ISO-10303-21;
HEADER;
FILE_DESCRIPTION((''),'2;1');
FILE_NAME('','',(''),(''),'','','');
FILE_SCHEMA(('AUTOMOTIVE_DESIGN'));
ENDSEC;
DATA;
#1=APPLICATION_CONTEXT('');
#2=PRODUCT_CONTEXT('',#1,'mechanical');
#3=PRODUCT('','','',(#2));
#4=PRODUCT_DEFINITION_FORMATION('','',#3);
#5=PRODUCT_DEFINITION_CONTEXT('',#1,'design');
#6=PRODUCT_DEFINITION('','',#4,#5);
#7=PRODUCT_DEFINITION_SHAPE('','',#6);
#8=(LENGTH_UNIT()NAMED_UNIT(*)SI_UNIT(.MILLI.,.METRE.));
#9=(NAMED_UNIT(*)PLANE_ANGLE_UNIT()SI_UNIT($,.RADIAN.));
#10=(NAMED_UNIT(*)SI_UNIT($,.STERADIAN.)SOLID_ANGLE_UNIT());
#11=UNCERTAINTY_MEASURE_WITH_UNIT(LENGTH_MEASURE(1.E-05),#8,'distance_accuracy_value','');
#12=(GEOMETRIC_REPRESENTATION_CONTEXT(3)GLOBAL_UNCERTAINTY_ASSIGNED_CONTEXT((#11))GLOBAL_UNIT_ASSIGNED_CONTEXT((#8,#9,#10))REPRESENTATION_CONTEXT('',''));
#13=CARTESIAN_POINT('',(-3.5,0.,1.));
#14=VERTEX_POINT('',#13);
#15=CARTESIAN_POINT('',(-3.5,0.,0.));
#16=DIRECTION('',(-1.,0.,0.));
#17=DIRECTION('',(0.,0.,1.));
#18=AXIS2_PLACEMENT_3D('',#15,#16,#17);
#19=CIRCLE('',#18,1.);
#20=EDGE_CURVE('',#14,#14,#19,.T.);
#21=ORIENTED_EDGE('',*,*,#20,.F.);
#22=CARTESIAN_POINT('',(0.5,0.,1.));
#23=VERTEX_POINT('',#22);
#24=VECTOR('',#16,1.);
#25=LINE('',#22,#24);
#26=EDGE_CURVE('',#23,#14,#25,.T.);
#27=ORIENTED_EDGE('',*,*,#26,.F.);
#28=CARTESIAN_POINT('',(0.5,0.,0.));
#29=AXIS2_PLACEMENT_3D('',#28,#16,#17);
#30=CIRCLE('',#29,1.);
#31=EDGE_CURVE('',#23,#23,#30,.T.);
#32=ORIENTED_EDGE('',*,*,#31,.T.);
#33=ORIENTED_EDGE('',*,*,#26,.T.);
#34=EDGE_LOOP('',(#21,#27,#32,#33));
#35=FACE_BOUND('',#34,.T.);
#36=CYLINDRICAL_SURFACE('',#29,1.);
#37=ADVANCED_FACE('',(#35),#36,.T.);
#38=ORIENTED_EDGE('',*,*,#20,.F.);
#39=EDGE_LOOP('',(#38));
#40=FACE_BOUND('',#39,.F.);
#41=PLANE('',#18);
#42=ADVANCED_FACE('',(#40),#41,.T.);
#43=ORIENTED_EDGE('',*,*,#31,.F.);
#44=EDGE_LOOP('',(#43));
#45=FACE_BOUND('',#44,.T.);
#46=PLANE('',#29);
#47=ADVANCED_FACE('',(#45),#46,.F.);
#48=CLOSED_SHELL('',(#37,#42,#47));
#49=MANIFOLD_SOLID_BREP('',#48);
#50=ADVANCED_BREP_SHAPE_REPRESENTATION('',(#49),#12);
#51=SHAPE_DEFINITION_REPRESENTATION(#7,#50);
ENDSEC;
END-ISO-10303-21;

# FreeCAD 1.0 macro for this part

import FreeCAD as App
import Part
import Sketcher
from FreeCAD import Vector
Q = App.Units.Quantity


def add_polygon(sketch, points):
    """Adds a closed chain of lines whose ends are joined by coincident constraints."""
    first, n = sketch.GeometryCount, len(points)
    for a, b in zip(points, points[1:] + points[:1]):
        sketch.addGeometry(Part.LineSegment(App.Vector(*a, 0), App.Vector(*b, 0)), False)
    for i in range(n):
        sketch.addConstraint(Sketcher.Constraint("Coincident", first + i, 2, first + (i + 1) % n, 1))

doc = App.newDocument("Part")
params = doc.addObject("Spreadsheet::Sheet", "Params")
for row, (alias, value) in enumerate([
    ("sketch1_width", "4 mm"),
    ("sketch1_height", "1 mm"),
    ("revolution_angle", "360 deg"),
], start=1):
    params.set(f"A{row}", alias)
    params.set(f"B{row}", "=" + value)
    params.setAlias(f"B{row}", alias)

body = doc.addObject("PartDesign::Body", "Body")

# Sketch on XZ plane
sketch1 = body.newObject("Sketcher::SketchObject", "Sketch")
sketch1.AttachmentSupport = (doc.getObject("XZ_Plane"), [""])
sketch1.MapMode = "FlatFace"
add_polygon(sketch1, [(-3.5, 1), (-3.5, 0), (0.5, 0), (0.5, 1)])  # lines 0-3
sketch1.addConstraint(Sketcher.Constraint("Vertical", 0))
sketch1.addConstraint(Sketcher.Constraint("Horizontal", 1))
sketch1.addConstraint(Sketcher.Constraint("Vertical", 2))
sketch1.addConstraint(Sketcher.Constraint("Horizontal", 3))
sketch1.addConstraint(Sketcher.Constraint("PointOnObject", 0, 2, -1))
sketch1.addConstraint(Sketcher.Constraint("DistanceX", 1, 1, 1, 2, Q("4 mm")))
sketch1.addConstraint(Sketcher.Constraint("DistanceY", 0, 2, 0, 1, Q("1 mm")))
sketch1.addConstraint(Sketcher.Constraint("DistanceX", 0, 2, -1, 1, Q("3.5 mm")))
sketch1.setExpression("Constraints[9]", "Params.sketch1_width")
sketch1.setExpression("Constraints[10]", "Params.sketch1_height")
revolution = body.newObject("PartDesign::Revolution", "Revolution")
revolution.Profile = sketch1
revolution.ReferenceAxis = (sketch1, ["H_Axis"])
revolution.setExpression("Angle", "Params.revolution_angle")

doc.recompute()
